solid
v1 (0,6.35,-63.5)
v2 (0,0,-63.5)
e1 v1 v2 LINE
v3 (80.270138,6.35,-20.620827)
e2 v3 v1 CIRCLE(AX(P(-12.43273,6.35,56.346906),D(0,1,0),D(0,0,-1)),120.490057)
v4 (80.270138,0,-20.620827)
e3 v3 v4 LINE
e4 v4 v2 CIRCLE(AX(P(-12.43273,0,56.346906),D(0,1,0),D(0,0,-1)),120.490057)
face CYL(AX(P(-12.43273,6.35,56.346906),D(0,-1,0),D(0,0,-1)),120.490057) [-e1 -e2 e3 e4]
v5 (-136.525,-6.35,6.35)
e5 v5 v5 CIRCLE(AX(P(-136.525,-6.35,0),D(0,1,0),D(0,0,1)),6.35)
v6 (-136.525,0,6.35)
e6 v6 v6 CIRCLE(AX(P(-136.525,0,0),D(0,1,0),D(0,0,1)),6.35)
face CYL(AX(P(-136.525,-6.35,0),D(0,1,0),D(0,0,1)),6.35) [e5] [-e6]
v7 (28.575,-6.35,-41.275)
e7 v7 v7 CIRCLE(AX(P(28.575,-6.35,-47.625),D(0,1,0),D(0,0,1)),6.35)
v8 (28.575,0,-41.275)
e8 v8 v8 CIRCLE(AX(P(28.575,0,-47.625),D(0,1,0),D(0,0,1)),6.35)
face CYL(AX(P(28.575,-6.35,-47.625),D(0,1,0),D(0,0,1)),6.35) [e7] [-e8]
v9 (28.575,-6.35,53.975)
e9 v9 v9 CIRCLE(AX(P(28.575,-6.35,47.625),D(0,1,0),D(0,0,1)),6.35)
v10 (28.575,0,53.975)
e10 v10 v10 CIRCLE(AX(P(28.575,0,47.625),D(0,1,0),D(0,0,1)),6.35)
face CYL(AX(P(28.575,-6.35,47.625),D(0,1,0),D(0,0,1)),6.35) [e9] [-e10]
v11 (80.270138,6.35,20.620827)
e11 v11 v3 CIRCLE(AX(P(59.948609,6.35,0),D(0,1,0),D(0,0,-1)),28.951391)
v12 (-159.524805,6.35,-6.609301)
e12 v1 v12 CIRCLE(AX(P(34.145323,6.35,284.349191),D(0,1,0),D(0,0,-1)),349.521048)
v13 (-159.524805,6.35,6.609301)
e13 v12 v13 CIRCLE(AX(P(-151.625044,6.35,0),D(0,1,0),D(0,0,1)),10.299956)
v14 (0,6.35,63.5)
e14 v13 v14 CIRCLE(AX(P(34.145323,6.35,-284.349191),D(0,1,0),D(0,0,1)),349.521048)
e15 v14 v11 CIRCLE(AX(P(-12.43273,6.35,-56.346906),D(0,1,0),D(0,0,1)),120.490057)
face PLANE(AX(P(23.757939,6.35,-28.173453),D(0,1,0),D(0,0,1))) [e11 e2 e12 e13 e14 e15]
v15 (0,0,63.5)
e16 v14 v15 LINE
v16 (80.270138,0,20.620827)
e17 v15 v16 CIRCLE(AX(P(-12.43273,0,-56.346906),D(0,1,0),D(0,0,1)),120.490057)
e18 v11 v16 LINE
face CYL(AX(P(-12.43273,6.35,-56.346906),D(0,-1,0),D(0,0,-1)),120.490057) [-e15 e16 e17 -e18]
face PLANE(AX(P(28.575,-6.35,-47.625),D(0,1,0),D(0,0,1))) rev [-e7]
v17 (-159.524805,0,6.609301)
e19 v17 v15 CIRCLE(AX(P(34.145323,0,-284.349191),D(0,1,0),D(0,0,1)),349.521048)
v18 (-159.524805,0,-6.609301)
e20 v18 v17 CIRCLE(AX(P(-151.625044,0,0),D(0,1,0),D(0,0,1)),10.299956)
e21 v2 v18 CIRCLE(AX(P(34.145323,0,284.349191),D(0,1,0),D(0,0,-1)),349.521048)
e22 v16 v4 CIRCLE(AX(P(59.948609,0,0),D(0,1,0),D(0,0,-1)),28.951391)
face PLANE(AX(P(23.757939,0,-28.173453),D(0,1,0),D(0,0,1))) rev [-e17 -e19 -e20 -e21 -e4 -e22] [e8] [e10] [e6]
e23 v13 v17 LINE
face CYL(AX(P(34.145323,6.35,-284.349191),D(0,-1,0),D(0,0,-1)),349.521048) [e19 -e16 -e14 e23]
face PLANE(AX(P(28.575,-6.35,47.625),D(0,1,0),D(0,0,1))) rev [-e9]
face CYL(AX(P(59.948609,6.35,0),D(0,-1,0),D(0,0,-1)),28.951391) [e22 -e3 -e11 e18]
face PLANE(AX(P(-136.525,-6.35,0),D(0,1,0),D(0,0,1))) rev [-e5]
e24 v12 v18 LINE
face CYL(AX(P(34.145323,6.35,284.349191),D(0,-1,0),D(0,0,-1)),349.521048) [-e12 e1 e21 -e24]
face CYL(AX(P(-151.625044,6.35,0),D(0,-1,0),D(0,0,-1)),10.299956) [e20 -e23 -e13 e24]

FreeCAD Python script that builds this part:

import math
import FreeCAD as App
import Part
import Sketcher

V = App.Vector
Q = App.Units.Quantity

doc = App.newDocument("Part")
body = doc.addObject("PartDesign::Body", "Body")

# Sketch on XZ plane
sketch1 = body.newObject("Sketcher::SketchObject", "Sketch")
sketch1.AttachmentSupport = (doc.getObject("XZ_Plane"), [""])
sketch1.MapMode = "FlatFace"
sketch1.addGeometry([
    Part.ArcOfCircle(Part.Circle(V(34, 284, 0), V(0, 0, 1), 350), math.radians(-124), math.radians(-96)),  # 0
    Part.ArcOfCircle(Part.Circle(V(-152, 0, 0), V(0, 0, 1), 10), math.radians(140), math.radians(220)),  # 1
    Part.ArcOfCircle(Part.Circle(V(34, -284, 0), V(0, 0, 1), 350), math.radians(96), math.radians(124)),  # 2
    Part.ArcOfCircle(Part.Circle(V(-12, -56, 0), V(0, 0, 1), 120), math.radians(40), math.radians(84)),  # 3
    Part.ArcOfCircle(Part.Circle(V(60, 0, 0), V(0, 0, 1), 29), math.radians(-45), math.radians(45)),  # 4
    Part.ArcOfCircle(Part.Circle(V(-12, 56, 0), V(0, 0, 1), 120), math.radians(-84), math.radians(-40)),  # 5
], False)
sketch1.addConstraint([
    Sketcher.Constraint("Coincident", 0, 1, 1, 2),
    Sketcher.Constraint("Coincident", 1, 1, 2, 2),
    Sketcher.Constraint("Coincident", 2, 1, 3, 2),
    Sketcher.Constraint("Coincident", 3, 1, 4, 2),
    Sketcher.Constraint("Coincident", 4, 1, 5, 2),
    Sketcher.Constraint("Coincident", 5, 1, 0, 2),
    Sketcher.Constraint("Equal", 0, 2),
    Sketcher.Constraint("Equal", 3, 5),
    Sketcher.Constraint("Symmetric", 2, 1, 5, 1, -1, 1),
    Sketcher.Constraint("Symmetric", 0, 3, 2, 3, -1),
    Sketcher.Constraint("Symmetric", 3, 1, 4, 1, -1),
    Sketcher.Constraint("PointOnObject", 1, 3, -1),
    Sketcher.Constraint("DistanceY", -1, 1, 2, 1, Q("2.5 in")),
    Sketcher.Constraint("Radius", 4, 28.951391),
    Sketcher.Constraint("Radius", 0, 349.521048),
    Sketcher.Constraint("Radius", 1, 10.299956),
    Sketcher.Constraint("Radius", 3, 120.490057),
    Sketcher.Constraint("DistanceY", 2, 3, 0, 3, Q("22.3897001 in")),
    Sketcher.Constraint("DistanceY", 0, 1, -1, 1, 6.609301),
    Sketcher.Constraint("DistanceX", 3, 3, -1, 1, 12.43273),
    Sketcher.Constraint("DistanceX", -1, 1, 4, 3, 59.948609),
])
pad1 = body.newObject("PartDesign::Pad", "Pad")
pad1.Profile = sketch1
pad1.Length = Q("0.25 in")
pad1.Reversed = True

# Sketch on XZ plane
sketch2 = body.newObject("Sketcher::SketchObject", "Sketch001")
sketch2.AttachmentSupport = (doc.getObject("XZ_Plane"), [""])
sketch2.MapMode = "FlatFace"
sketch2.addGeometry([
    Part.Circle(V(29, -48, 0), V(0, 0, 1), 6),
    Part.Circle(V(29, 48, 0), V(0, 0, 1), 6),
    Part.Circle(V(-137, 0, 0), V(0, 0, 1), 6),
], False)
sketch2.addConstraint([
    Sketcher.Constraint("Equal", 0, 1),
    Sketcher.Constraint("Equal", 1, 2),
    Sketcher.Constraint("Symmetric", 0, 3, 1, 3, -1),
    Sketcher.Constraint("PointOnObject", 2, 3, -1),
    Sketcher.Constraint("Diameter", 0, Q("0.5 in")),
    Sketcher.Constraint("DistanceX", 2, 3, 0, 3, Q("6.5 in")),
    Sketcher.Constraint("DistanceY", 0, 3, 1, 3, Q("3.75 in")),
    Sketcher.Constraint("DistanceX", -1, 1, 0, 3, Q("1.125 in")),
])
pad2 = body.newObject("PartDesign::Pad", "Pad001")
pad2.Profile = sketch2
pad2.Length = Q("0.25 in")

doc.recompute()
